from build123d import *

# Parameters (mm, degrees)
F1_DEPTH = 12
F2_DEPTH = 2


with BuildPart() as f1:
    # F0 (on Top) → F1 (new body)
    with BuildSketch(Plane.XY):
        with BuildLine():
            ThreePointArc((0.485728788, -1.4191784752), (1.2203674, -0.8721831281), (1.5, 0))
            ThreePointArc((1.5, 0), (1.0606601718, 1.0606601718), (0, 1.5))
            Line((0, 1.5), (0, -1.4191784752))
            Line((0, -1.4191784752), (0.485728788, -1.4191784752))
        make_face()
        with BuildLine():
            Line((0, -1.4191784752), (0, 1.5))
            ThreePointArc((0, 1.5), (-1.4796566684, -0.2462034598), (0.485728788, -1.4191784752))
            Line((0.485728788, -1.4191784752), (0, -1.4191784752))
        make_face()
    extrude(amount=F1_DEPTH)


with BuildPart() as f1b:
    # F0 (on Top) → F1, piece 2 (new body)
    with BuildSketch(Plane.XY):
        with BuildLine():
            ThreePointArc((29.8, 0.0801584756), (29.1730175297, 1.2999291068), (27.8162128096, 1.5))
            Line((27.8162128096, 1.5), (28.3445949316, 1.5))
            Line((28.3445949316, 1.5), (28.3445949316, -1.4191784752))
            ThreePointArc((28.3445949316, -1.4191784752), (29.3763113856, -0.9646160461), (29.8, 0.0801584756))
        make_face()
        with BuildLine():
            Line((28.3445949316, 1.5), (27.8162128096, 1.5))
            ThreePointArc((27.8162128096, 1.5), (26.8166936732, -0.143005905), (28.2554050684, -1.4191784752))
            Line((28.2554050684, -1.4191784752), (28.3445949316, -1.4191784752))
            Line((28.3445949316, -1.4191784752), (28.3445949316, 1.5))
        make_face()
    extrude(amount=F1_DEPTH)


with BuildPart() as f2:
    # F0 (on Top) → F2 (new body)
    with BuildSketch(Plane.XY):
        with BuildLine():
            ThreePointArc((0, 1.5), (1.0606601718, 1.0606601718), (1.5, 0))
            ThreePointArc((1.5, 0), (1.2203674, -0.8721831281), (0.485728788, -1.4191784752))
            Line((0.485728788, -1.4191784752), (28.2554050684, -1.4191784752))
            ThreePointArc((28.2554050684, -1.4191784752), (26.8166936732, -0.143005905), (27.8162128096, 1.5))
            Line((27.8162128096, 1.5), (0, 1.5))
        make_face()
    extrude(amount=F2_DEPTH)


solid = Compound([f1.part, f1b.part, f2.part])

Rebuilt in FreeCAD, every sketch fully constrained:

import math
import FreeCAD as App
import Part
import Sketcher
from FreeCAD import Vector

doc = App.newDocument("Part")
body = doc.addObject("PartDesign::Body", "Body")

# Sketch on XY plane
sketch1 = body.newObject("Sketcher::SketchObject", "Sketch")
sketch1.AttachmentSupport = (doc.getObject("XY_Plane"), [""])
sketch1.MapMode = "FlatFace"
sketch1.addGeometry(Part.ArcOfCircle(Part.Circle(Vector(0, 0, 0), Vector(0, 0, 1), 1.5), math.radians(-71), math.radians(0)), False)
sketch1.addGeometry(Part.ArcOfCircle(Part.Circle(Vector(0, 0, 0), Vector(0, 0, 1), 1.5), math.radians(0), math.radians(90)), False)
sketch1.addGeometry(Part.ArcOfCircle(Part.Circle(Vector(0, 0, 0), Vector(0, 0, 1), 1.5), math.radians(90), math.radians(289)), False)
sketch1.addConstraint(Sketcher.Constraint("Tangent", 0, 2, 1, 1))
sketch1.addConstraint(Sketcher.Constraint("Tangent", 1, 2, 2, 1))
sketch1.addConstraint(Sketcher.Constraint("Tangent", 2, 2, 0, 1))
sketch1.addConstraint(Sketcher.Constraint("Coincident", 0, 3, -1, 1))
sketch1.addConstraint(Sketcher.Constraint("PointOnObject", 0, 2, -1))
sketch1.addConstraint(Sketcher.Constraint("PointOnObject", 1, 2, -2))
sketch1.addConstraint(Sketcher.Constraint("Radius", 0, 1.5))
sketch1.addConstraint(Sketcher.Constraint("DistanceX", -1, 1, 2, 2, 0.485729))
pad1 = body.newObject("PartDesign::Pad", "Pad")
pad1.Profile = sketch1
pad1.Length = 12
body2 = doc.addObject("PartDesign::Body", "Body001")

# Sketch on XY plane
sketch2 = body2.newObject("Sketcher::SketchObject", "Sketch001")
sketch2.AttachmentSupport = (doc.getObject("XY_Plane001"), [""])
sketch2.MapMode = "FlatFace"
sketch2.addGeometry(Part.ArcOfCircle(Part.Circle(Vector(28.3, 0.08, 0), Vector(0, 0, 1), 1.5), math.radians(0), math.radians(109)), False)
sketch2.addGeometry(Part.ArcOfCircle(Part.Circle(Vector(28.3, 0.08, 0), Vector(0, 0, 1), 1.5), math.radians(109), math.radians(268)), False)
sketch2.addGeometry(Part.LineSegment(Vector(28.26, -1.42, 0), Vector(28.34, -1.42, 0)), False)
sketch2.addGeometry(Part.ArcOfCircle(Part.Circle(Vector(28.3, 0.08, 0), Vector(0, 0, 1), 1.5), math.radians(-88), math.radians(0)), False)
sketch2.addConstraint(Sketcher.Constraint("Tangent", 0, 2, 1, 1))
sketch2.addConstraint(Sketcher.Constraint("Coincident", 1, 2, 2, 1))
sketch2.addConstraint(Sketcher.Constraint("Coincident", 2, 2, 3, 1))
sketch2.addConstraint(Sketcher.Constraint("Tangent", 3, 2, 0, 1))
sketch2.addConstraint(Sketcher.Constraint("Horizontal", 2))
sketch2.addConstraint(Sketcher.Constraint("Equal", 0, 1))
sketch2.addConstraint(Sketcher.Constraint("Equal", 1, 3))
sketch2.addConstraint(Sketcher.Constraint("Horizontal", 1, 3, 3, 2))
sketch2.addConstraint(Sketcher.Constraint("Radius", 0, 1.5))
sketch2.addConstraint(Sketcher.Constraint("DistanceX", -1, 1, 0, 3, 28.3))
sketch2.addConstraint(Sketcher.Constraint("DistanceY", -1, 1, 0, 2, 1.5))
sketch2.addConstraint(Sketcher.Constraint("DistanceX", 2, 1, 2, 2, 0.08919))
sketch2.addConstraint(Sketcher.Constraint("DistanceY", -1, 1, 0, 3, 0.080158))
pad2 = body2.newObject("PartDesign::Pad", "Pad001")
pad2.Profile = sketch2
pad2.Length = 12
body3 = doc.addObject("PartDesign::Body", "Body002")

# Sketch on XY plane
sketch3 = body3.newObject("Sketcher::SketchObject", "Sketch002")
sketch3.AttachmentSupport = (doc.getObject("XY_Plane002"), [""])
sketch3.MapMode = "FlatFace"
sketch3.addGeometry(Part.ArcOfCircle(Part.Circle(Vector(0, 0, 0), Vector(0, 0, 1), 1.5), math.radians(0), math.radians(90)), False)
sketch3.addGeometry(Part.ArcOfCircle(Part.Circle(Vector(0, 0, 0), Vector(0, 0, 1), 1.5), math.radians(-71), math.radians(0)), False)
sketch3.addGeometry(Part.LineSegment(Vector(0.5, -1.4, 0), Vector(28.3, -1.4, 0)), False)
sketch3.addGeometry(Part.ArcOfCircle(Part.Circle(Vector(28.3, 0.1, 0), Vector(0, 0, 1), 1.5), math.radians(109), math.radians(268)), False)
sketch3.addGeometry(Part.LineSegment(Vector(27.8, 1.5, 0), Vector(0, 1.5, 0)), False)
sketch3.addConstraint(Sketcher.Constraint("Tangent", 0, 1, 1, 2))
sketch3.addConstraint(Sketcher.Constraint("Coincident", 1, 1, 2, 1))
sketch3.addConstraint(Sketcher.Constraint("Coincident", 2, 2, 3, 2))
sketch3.addConstraint(Sketcher.Constraint("Coincident", 3, 1, 4, 1))
sketch3.addConstraint(Sketcher.Constraint("Tangent", 4, 2, 0, 2))
sketch3.addConstraint(Sketcher.Constraint("Horizontal", 2))
sketch3.addConstraint(Sketcher.Constraint("Horizontal", 4))
sketch3.addConstraint(Sketcher.Constraint("Coincident", 0, 3, -1, 1))
sketch3.addConstraint(Sketcher.Constraint("Equal", 0, 1))
sketch3.addConstraint(Sketcher.Constraint("Equal", 1, 3))
sketch3.addConstraint(Sketcher.Constraint("PointOnObject", 0, 1, -1))
sketch3.addConstraint(Sketcher.Constraint("Radius", 0, 1.5))
sketch3.addConstraint(Sketcher.Constraint("DistanceX", -1, 1, 3, 3, 28.3))
sketch3.addConstraint(Sketcher.Constraint("DistanceX", 2, 1, 2, 2, 27.769676))
sketch3.addConstraint(Sketcher.Constraint("DistanceX", 4, 2, 4, 1, 27.816213))
pad3 = body3.newObject("PartDesign::Pad", "Pad002")
pad3.Profile = sketch3
pad3.Length = 2

doc.recompute()
